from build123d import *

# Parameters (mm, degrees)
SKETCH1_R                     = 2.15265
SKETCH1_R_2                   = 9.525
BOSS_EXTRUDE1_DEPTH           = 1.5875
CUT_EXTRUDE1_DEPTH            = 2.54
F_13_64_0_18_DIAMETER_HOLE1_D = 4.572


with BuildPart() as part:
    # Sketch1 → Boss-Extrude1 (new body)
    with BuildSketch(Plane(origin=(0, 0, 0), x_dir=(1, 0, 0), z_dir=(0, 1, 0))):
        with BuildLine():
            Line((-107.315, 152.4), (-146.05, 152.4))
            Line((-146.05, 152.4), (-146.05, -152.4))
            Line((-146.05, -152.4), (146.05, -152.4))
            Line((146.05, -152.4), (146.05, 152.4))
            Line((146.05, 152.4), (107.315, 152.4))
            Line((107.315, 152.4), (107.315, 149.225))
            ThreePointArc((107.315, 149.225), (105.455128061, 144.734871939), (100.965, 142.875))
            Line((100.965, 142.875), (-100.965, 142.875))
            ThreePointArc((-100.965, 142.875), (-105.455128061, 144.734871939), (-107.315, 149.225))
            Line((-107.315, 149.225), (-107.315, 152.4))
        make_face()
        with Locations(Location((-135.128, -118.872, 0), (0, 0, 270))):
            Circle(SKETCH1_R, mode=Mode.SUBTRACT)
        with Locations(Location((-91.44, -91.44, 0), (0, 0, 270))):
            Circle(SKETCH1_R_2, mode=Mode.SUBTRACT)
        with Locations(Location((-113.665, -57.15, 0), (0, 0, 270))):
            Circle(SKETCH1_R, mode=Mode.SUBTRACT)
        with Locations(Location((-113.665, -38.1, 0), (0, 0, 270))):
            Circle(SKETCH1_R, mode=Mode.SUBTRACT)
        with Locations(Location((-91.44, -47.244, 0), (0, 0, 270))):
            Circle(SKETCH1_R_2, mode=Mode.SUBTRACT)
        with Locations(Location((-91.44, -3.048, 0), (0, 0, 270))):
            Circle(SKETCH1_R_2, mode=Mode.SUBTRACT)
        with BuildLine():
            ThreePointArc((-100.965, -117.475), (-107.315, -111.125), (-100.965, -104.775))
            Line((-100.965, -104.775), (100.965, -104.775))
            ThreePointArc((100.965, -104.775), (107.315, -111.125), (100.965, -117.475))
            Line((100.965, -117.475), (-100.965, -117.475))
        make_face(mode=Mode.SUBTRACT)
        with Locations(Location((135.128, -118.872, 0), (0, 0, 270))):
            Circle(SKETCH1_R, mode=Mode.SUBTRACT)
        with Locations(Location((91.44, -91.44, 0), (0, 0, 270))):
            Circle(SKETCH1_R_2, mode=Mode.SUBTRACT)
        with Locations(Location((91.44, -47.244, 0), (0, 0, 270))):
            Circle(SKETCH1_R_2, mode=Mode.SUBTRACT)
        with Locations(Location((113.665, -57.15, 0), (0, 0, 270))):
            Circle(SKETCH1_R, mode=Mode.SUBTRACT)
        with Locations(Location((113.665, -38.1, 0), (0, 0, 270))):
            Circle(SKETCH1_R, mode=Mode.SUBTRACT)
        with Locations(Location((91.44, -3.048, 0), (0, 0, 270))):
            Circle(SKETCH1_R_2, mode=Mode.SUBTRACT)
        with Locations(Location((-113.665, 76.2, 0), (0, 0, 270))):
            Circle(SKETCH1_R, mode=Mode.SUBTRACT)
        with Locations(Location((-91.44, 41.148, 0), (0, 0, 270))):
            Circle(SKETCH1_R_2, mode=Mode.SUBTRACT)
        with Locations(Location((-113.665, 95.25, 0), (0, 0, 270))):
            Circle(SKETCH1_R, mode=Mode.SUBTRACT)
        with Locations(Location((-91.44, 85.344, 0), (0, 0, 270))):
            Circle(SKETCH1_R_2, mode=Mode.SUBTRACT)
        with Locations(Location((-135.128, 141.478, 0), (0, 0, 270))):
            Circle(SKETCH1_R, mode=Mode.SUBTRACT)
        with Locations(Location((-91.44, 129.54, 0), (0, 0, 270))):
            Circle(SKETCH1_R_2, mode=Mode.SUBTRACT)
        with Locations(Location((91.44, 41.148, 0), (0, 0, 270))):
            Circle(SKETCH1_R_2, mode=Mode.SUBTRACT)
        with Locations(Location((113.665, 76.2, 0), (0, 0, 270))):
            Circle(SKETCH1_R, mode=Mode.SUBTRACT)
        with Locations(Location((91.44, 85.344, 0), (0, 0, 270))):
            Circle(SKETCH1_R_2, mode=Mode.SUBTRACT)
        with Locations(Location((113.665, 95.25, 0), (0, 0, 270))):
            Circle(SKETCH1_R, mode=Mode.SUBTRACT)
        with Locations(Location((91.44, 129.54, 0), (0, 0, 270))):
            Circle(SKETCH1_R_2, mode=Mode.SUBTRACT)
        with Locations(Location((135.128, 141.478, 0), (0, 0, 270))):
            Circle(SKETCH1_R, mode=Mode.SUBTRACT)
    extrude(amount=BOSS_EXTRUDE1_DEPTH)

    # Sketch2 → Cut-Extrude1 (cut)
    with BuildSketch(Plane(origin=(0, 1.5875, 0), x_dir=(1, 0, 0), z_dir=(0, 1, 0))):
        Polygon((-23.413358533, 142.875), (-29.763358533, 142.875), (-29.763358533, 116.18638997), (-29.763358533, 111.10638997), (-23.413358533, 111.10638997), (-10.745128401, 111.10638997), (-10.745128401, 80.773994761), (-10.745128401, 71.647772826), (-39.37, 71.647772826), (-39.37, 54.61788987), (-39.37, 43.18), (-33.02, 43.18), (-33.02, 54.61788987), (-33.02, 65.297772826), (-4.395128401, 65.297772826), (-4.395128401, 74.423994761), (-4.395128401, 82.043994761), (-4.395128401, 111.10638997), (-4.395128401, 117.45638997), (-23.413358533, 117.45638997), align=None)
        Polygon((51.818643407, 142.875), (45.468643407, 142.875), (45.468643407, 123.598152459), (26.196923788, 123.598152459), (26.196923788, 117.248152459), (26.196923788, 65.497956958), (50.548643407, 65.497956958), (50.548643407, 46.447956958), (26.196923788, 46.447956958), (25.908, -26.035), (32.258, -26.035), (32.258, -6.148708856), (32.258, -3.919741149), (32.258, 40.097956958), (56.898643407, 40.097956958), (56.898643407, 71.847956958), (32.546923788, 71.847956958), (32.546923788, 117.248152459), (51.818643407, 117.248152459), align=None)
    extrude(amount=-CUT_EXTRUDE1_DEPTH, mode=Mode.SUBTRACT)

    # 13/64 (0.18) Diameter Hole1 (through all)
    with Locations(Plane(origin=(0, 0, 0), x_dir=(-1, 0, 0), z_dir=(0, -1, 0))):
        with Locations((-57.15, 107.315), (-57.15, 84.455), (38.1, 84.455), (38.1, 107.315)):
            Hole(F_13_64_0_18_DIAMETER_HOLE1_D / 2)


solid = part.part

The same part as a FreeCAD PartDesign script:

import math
import FreeCAD as App
import Part
import Sketcher
from FreeCAD import Vector
Q = App.Units.Quantity


def add_polygon(sketch, points):
    """Adds a closed chain of lines whose ends are joined by coincident constraints."""
    first, n = sketch.GeometryCount, len(points)
    for a, b in zip(points, points[1:] + points[:1]):
        sketch.addGeometry(Part.LineSegment(App.Vector(*a, 0), App.Vector(*b, 0)), False)
    for i in range(n):
        sketch.addConstraint(Sketcher.Constraint("Coincident", first + i, 2, first + (i + 1) % n, 1))

doc = App.newDocument("Part")
body = doc.addObject("PartDesign::Body", "Body")

# Sketch on XZ plane
sketch1 = body.newObject("Sketcher::SketchObject", "Sketch")
sketch1.AttachmentSupport = (doc.getObject("XZ_Plane"), [""])
sketch1.MapMode = "FlatFace"
sketch1.addGeometry([
    Part.LineSegment(Vector(-107.3, -152.4, 0), Vector(-146.1, -152.4, 0)),  # 0
    Part.LineSegment(Vector(-146.1, -152.4, 0), Vector(-146.1, 152.4, 0)),  # 1
    Part.LineSegment(Vector(-146.1, 152.4, 0), Vector(146.1, 152.4, 0)),  # 2
    Part.LineSegment(Vector(146.1, 152.4, 0), Vector(146.1, -152.4, 0)),  # 3
    Part.LineSegment(Vector(146.1, -152.4, 0), Vector(107.3, -152.4, 0)),  # 4
    Part.LineSegment(Vector(107.3, -152.4, 0), Vector(107.3, -149.2, 0)),  # 5
    Part.ArcOfCircle(Part.Circle(Vector(101, -149.2, 0), Vector(0, 0, 1), 6.3), math.radians(0), math.radians(90)),  # 6
    Part.LineSegment(Vector(101, -142.9, 0), Vector(-101, -142.9, 0)),  # 7
    Part.ArcOfCircle(Part.Circle(Vector(-101, -149.2, 0), Vector(0, 0, 1), 6.3), math.radians(90), math.radians(180)),  # 8
    Part.LineSegment(Vector(-107.3, -149.2, 0), Vector(-107.3, -152.4, 0)),  # 9
    Part.Circle(Vector(-135.1, 118.9, 0), Vector(0, 0, 1), 2.2),  # 10
    Part.Circle(Vector(-91.4, 91.4, 0), Vector(0, 0, 1), 9.5),  # 11
    Part.Circle(Vector(-113.7, 57.1, 0), Vector(0, 0, 1), 2.2),  # 12
    Part.Circle(Vector(-113.7, 38.1, 0), Vector(0, 0, 1), 2.2),  # 13
    Part.Circle(Vector(-91.4, 47.2, 0), Vector(0, 0, 1), 9.5),  # 14
    Part.Circle(Vector(-91.4, 3, 0), Vector(0, 0, 1), 9.5),  # 15
    Part.LineSegment(Vector(101, 117.5, 0), Vector(-101, 117.5, 0)),  # 16
    Part.ArcOfCircle(Part.Circle(Vector(-101, 111.1, 0), Vector(0, 0, 1), 6.3), math.radians(90), math.radians(270)),  # 17
    Part.LineSegment(Vector(-101, 104.8, 0), Vector(101, 104.8, 0)),  # 18
    Part.ArcOfCircle(Part.Circle(Vector(101, 111.1, 0), Vector(0, 0, 1), 6.3), math.radians(-90), math.radians(90)),  # 19
    Part.Circle(Vector(91.4, 91.4, 0), Vector(0, 0, 1), 9.5),  # 20
    Part.Circle(Vector(135.1, 118.9, 0), Vector(0, 0, 1), 2.2),  # 21
    Part.Circle(Vector(113.7, 57.1, 0), Vector(0, 0, 1), 2.2),  # 22
    Part.Circle(Vector(91.4, 47.2, 0), Vector(0, 0, 1), 9.5),  # 23
    Part.Circle(Vector(113.7, 38.1, 0), Vector(0, 0, 1), 2.2),  # 24
    Part.Circle(Vector(91.4, 3, 0), Vector(0, 0, 1), 9.5),  # 25
    Part.Circle(Vector(-91.4, -41.1, 0), Vector(0, 0, 1), 9.5),  # 26
    Part.Circle(Vector(-113.7, -76.2, 0), Vector(0, 0, 1), 2.2),  # 27
    Part.Circle(Vector(-113.7, -95.2, 0), Vector(0, 0, 1), 2.2),  # 28
    Part.Circle(Vector(-91.4, -85.3, 0), Vector(0, 0, 1), 9.5),  # 29
    Part.Circle(Vector(-135.1, -141.5, 0), Vector(0, 0, 1), 2.2),  # 30
    Part.Circle(Vector(-91.4, -129.5, 0), Vector(0, 0, 1), 9.5),  # 31
    Part.Circle(Vector(91.4, -41.1, 0), Vector(0, 0, 1), 9.5),  # 32
    Part.Circle(Vector(113.7, -76.2, 0), Vector(0, 0, 1), 2.2),  # 33
    Part.Circle(Vector(91.4, -85.3, 0), Vector(0, 0, 1), 9.5),  # 34
    Part.Circle(Vector(113.7, -95.2, 0), Vector(0, 0, 1), 2.2),  # 35
    Part.Circle(Vector(91.4, -129.5, 0), Vector(0, 0, 1), 9.5),  # 36
    Part.Circle(Vector(135.1, -141.5, 0), Vector(0, 0, 1), 2.2),  # 37
], False)
sketch1.addConstraint([
    Sketcher.Constraint("Coincident", 0, 2, 1, 1),
    Sketcher.Constraint("Coincident", 1, 2, 2, 1),
    Sketcher.Constraint("Coincident", 2, 2, 3, 1),
    Sketcher.Constraint("Coincident", 3, 2, 4, 1),
    Sketcher.Constraint("Coincident", 4, 2, 5, 1),
    Sketcher.Constraint("Tangent", 5, 2, 6, 1),
    Sketcher.Constraint("Tangent", 6, 2, 7, 1),
    Sketcher.Constraint("Tangent", 7, 2, 8, 1),
    Sketcher.Constraint("Tangent", 8, 2, 9, 1),
    Sketcher.Constraint("Coincident", 9, 2, 0, 1),
    Sketcher.Constraint("Tangent", 16, 2, 17, 1),
    Sketcher.Constraint("Tangent", 17, 2, 18, 1),
    Sketcher.Constraint("Tangent", 18, 2, 19, 1),
    Sketcher.Constraint("Tangent", 19, 2, 16, 1),
    Sketcher.Constraint("Horizontal", 0),
    Sketcher.Constraint("Vertical", 1),
    Sketcher.Constraint("Horizontal", 2),
    Sketcher.Constraint("Vertical", 3),
    Sketcher.Constraint("Horizontal", 4),
    Sketcher.Constraint("Vertical", 5),
    Sketcher.Constraint("Horizontal", 7),
    Sketcher.Constraint("Vertical", 9),
    Sketcher.Constraint("Horizontal", 16),
    Sketcher.Constraint("Horizontal", 18),
    Sketcher.Constraint("Equal", 6, 8),
    Sketcher.Constraint("Equal", 10, 12),
    Sketcher.Constraint("Equal", 12, 13),
    Sketcher.Constraint("Equal", 11, 14),
    Sketcher.Constraint("Equal", 14, 15),
    Sketcher.Constraint("Equal", 8, 17),
    Sketcher.Constraint("Equal", 15, 20),
    Sketcher.Constraint("Equal", 13, 21),
    Sketcher.Constraint("Equal", 21, 22),
    Sketcher.Constraint("Equal", 20, 23),
    Sketcher.Constraint("Equal", 22, 24),
    Sketcher.Constraint("Equal", 23, 25),
    Sketcher.Constraint("Equal", 25, 26),
    Sketcher.Constraint("Equal", 24, 27),
    Sketcher.Constraint("Equal", 27, 28),
    Sketcher.Constraint("Equal", 26, 29),
    Sketcher.Constraint("Equal", 28, 30),
    Sketcher.Constraint("Equal", 29, 31),
    Sketcher.Constraint("Equal", 31, 32),
    Sketcher.Constraint("Equal", 30, 33),
    Sketcher.Constraint("Equal", 32, 34),
    Sketcher.Constraint("Equal", 33, 35),
    Sketcher.Constraint("Equal", 34, 36),
    Sketcher.Constraint("Equal", 35, 37),
    Sketcher.Constraint("Symmetric", 0, 2, 2, 2, -1, 1),
    Sketcher.Constraint("Symmetric", 11, 3, 20, 3, -2),
    Sketcher.Constraint("Symmetric", 10, 3, 21, 3, -2),
    Sketcher.Constraint("Symmetric", 12, 3, 22, 3, -2),
    Sketcher.Constraint("Symmetric", 14, 3, 23, 3, -2),
    Sketcher.Constraint("Symmetric", 13, 3, 24, 3, -2),
    Sketcher.Constraint("Symmetric", 15, 3, 25, 3, -2),
    Sketcher.Constraint("Symmetric", 26, 3, 32, 3, -2),
    Sketcher.Constraint("Symmetric", 27, 3, 33, 3, -2),
    Sketcher.Constraint("Symmetric", 29, 3, 34, 3, -2),
    Sketcher.Constraint("Symmetric", 28, 3, 35, 3, -2),
    Sketcher.Constraint("Symmetric", 31, 3, 36, 3, -2),
    Sketcher.Constraint("Symmetric", 30, 3, 37, 3, -2),
    Sketcher.Constraint("Symmetric", 4, 2, 9, 2, -2),
    Sketcher.Constraint("Vertical", 12, 3, 13, 3),
    Sketcher.Constraint("Vertical", 11, 3, 14, 3),
    Sketcher.Constraint("Vertical", 14, 3, 15, 3),
    Sketcher.Constraint("Vertical", 8, 3, 17, 3),
    Sketcher.Constraint("Vertical", 6, 3, 19, 3),
    Sketcher.Constraint("Vertical", 15, 3, 26, 3),
    Sketcher.Constraint("Vertical", 13, 3, 27, 3),
    Sketcher.Constraint("Vertical", 27, 3, 28, 3),
    Sketcher.Constraint("Vertical", 26, 3, 29, 3),
    Sketcher.Constraint("Vertical", 10, 3, 30, 3),
    Sketcher.Constraint("Vertical", 29, 3, 31, 3),
    Sketcher.Constraint("Diameter", 11, Q("0.75 in")),
    Sketcher.Constraint("DistanceY", 1, 1, 1, 2, Q("12 in")),
    Sketcher.Constraint("Radius", 6, Q("0.25 in")),
    Sketcher.Constraint("DistanceX", 2, 1, 2, 2, Q("11.5 in")),
    Sketcher.Constraint("DistanceY", 27, 3, -1, 1, Q("3 in")),
    Sketcher.Constraint("Diameter", 10, Q("0.1695 in")),
    Sketcher.Constraint("DistanceX", 7, 2, 7, 1, Q("7.95 in")),
    Sketcher.Constraint("DistanceX", 11, 3, -1, 1, Q("3.6 in")),
    Sketcher.Constraint("DistanceY", -1, 1, 11, 3, Q("3.6 in")),
    Sketcher.Constraint("DistanceY", -1, 1, 13, 3, Q("1.5 in")),
    Sketcher.Constraint("DistanceY", 31, 3, -1, 1, Q("5.1 in")),
    Sketcher.Constraint("DistanceX", 12, 3, 8, 3, Q("0.5 in")),
    Sketcher.Constraint("DistanceY", 5, 1, 5, 2, Q("0.125 in")),
    Sketcher.Constraint("DistanceX", 10, 3, -1, 1, Q("5.32 in")),
    Sketcher.Constraint("DistanceY", -1, 1, 10, 3, Q("4.68 in")),
    Sketcher.Constraint("DistanceY", -1, 1, 12, 3, Q("2.25 in")),
    Sketcher.Constraint("DistanceY", -1, 1, 14, 3, Q("1.86 in")),
    Sketcher.Constraint("DistanceY", -1, 1, 15, 3, Q("0.12 in")),
    Sketcher.Constraint("DistanceY", 26, 3, -1, 1, Q("1.62 in")),
    Sketcher.Constraint("DistanceY", 28, 3, -1, 1, Q("3.75 in")),
    Sketcher.Constraint("DistanceY", 29, 3, -1, 1, Q("3.36 in")),
    Sketcher.Constraint("DistanceY", 30, 3, -1, 1, Q("5.57 in")),
    Sketcher.Constraint("DistanceY", -1, 1, 17, 3, Q("4.375 in")),
])
pad1 = body.newObject("PartDesign::Pad", "Pad")
pad1.Profile = sketch1
pad1.Length = Q("0.0625 in")
pad1.Reversed = True

# Sketch on XZ plane
sketch2 = body.newObject("Sketcher::SketchObject", "Sketch001")
sketch2.AttachmentSupport = (doc.getObject("XZ_Plane"), [""])
sketch2.MapMode = "FlatFace"
sketch2.AttachmentOffset = App.Placement(Vector(0, 0, -0.0625 * 25.4), App.Rotation())
add_polygon(sketch2, [(-23, -143), (-30, -143), (-30, -111), (-11, -111), (-11, -72), (-39, -72), (-39, -43), (-33, -43), (-33, -65), (-4, -65), (-4, -117), (-23, -117)])  # lines 0-11
add_polygon(sketch2, [(52, -143), (45, -143), (45, -124), (26, -124), (26, -65), (51, -65), (51, -46), (26, -46), (26, 26), (32, 26), (32, -40), (57, -40), (57, -72), (33, -72), (33, -117), (52, -117)])  # lines 12-27
sketch2.addConstraint([
    Sketcher.Constraint("Horizontal", 0),
    Sketcher.Constraint("Vertical", 1),
    Sketcher.Constraint("Horizontal", 2),
    Sketcher.Constraint("Vertical", 3),
    Sketcher.Constraint("Horizontal", 4),
    Sketcher.Constraint("Vertical", 5),
    Sketcher.Constraint("Horizontal", 6),
    Sketcher.Constraint("Vertical", 7),
    Sketcher.Constraint("Horizontal", 8),
    Sketcher.Constraint("Vertical", 9),
    Sketcher.Constraint("Horizontal", 10),
    Sketcher.Constraint("Vertical", 11),
    Sketcher.Constraint("Horizontal", 12),
    Sketcher.Constraint("Vertical", 13),
    Sketcher.Constraint("Horizontal", 14),
    Sketcher.Constraint("Vertical", 15),
    Sketcher.Constraint("Horizontal", 16),
    Sketcher.Constraint("Vertical", 17),
    Sketcher.Constraint("Horizontal", 18),
    Sketcher.Constraint("Horizontal", 20),
    Sketcher.Constraint("Vertical", 21),
    Sketcher.Constraint("Horizontal", 22),
    Sketcher.Constraint("Vertical", 23),
    Sketcher.Constraint("Horizontal", 24),
    Sketcher.Constraint("Vertical", 25),
    Sketcher.Constraint("Horizontal", 26),
    Sketcher.Constraint("Vertical", 27),
    Sketcher.Constraint("Horizontal", 11, 2, 12, 2),
    Sketcher.Constraint("Vertical", 15, 2, 18, 2),
    Sketcher.Constraint("Equal", 0, 6),
    Sketcher.Constraint("Equal", 4, 8),
    Sketcher.Constraint("Equal", 6, 12),
    Sketcher.Constraint("Equal", 12, 20),
    Sketcher.Constraint("Equal", 18, 24),
    Sketcher.Constraint("Equal", 14, 26),
    Sketcher.Constraint("DistanceY", 15, 2, 21, 2, Q("1 in")),
    Sketcher.Constraint("DistanceY", 23, 2, 17, 2, Q("1 in")),
    Sketcher.Constraint("DistanceX", 0, 2, 0, 1, Q("0.25 in")),
    Sketcher.Constraint("DistanceY", 17, 1, 17, 2, Q("0.75 in")),
    Sketcher.Constraint("DistanceY", 5, 2, -1, 1, Q("1.7 in")),
    Sketcher.Constraint("DistanceX", 6, 2, -1, 1, Q("1.3 in")),
    Sketcher.Constraint("DistanceX", 13, 2, 16, 2, Q("0.2 in")),
    Sketcher.Constraint("DistanceX", -1, 1, 19, 2, Q("1.02 in")),
    Sketcher.Constraint("DistanceY", 4, 2, 7, 2, Q("0.25 in")),
    Sketcher.Constraint("DistanceY", 9, 2, 2, 2, Q("0.25 in")),
    Sketcher.Constraint("DistanceY", 14, 2, 25, 2, Q("0.25 in")),
    Sketcher.Constraint("DistanceY", 0, 2, -1, 1, Q("5.625 in")),
    Sketcher.Constraint("DistanceY", -1, 1, 19, 2, Q("1.025 in")),
    Sketcher.Constraint("DistanceX", 2, 1, 2, 2, Q("19.01823 mm")),
    Sketcher.Constraint("DistanceX", 4, 2, 4, 1, Q("28.624872 mm")),
    Sketcher.Constraint("DistanceX", 14, 2, 14, 1, Q("19.27172 mm")),
    Sketcher.Constraint("DistanceY", 1, 1, 1, 2, Q("31.76861 mm")),
    Sketcher.Constraint("DistanceX", 11, 2, 12, 2, Q("68.882002 mm")),
    Sketcher.Constraint("DistanceY", 3, 1, 3, 2, Q("39.458617 mm")),
    Sketcher.Constraint("DistanceY", 13, 1, 13, 2, Q("19.276848 mm")),
    Sketcher.Constraint("DistanceY", 15, 1, 15, 2, Q("58.100196 mm")),
])
pocket1 = body.newObject("PartDesign::Pocket", "Pocket")
pocket1.Profile = sketch2
pocket1.Length = Q("0.1 in")
pocket1.Reversed = True

# Sketch on XZ plane
sketch3 = body.newObject("Sketcher::SketchObject", "Sketch002")
sketch3.AttachmentSupport = (doc.getObject("XZ_Plane"), [""])
sketch3.MapMode = "FlatFace"
sketch3.addGeometry([
    Part.Circle(Vector(57.1, -107.3, 0), Vector(0, 0, 1), 2.3),
    Part.Circle(Vector(57.1, -84.5, 0), Vector(0, 0, 1), 2.3),
    Part.Circle(Vector(-38.1, -84.5, 0), Vector(0, 0, 1), 2.3),
    Part.Circle(Vector(-38.1, -107.3, 0), Vector(0, 0, 1), 2.3),
], False)
sketch3.addConstraint([
    Sketcher.Constraint("Equal", 0, 1),
    Sketcher.Constraint("Equal", 1, 2),
    Sketcher.Constraint("Equal", 2, 3),
    Sketcher.Constraint("Horizontal", 1, 3, 2, 3),
    Sketcher.Constraint("Horizontal", 0, 3, 3, 3),
    Sketcher.Constraint("Vertical", 0, 3, 1, 3),
    Sketcher.Constraint("Vertical", 2, 3, 3, 3),
    Sketcher.Constraint("Diameter", 0, Q("0.18 in")),
    Sketcher.Constraint("DistanceX", 2, 3, -1, 1, Q("1.5 in")),
    Sketcher.Constraint("DistanceY", 0, 3, 1, 3, Q("0.9 in")),
    Sketcher.Constraint("DistanceX", -1, 1, 0, 3, Q("2.25 in")),
    Sketcher.Constraint("DistanceY", 0, 3, -1, 1, Q("4.225 in")),
])
doc.recompute()
hole = body.newObject("PartDesign::Hole", "Hole")
hole.Profile = sketch3
hole.ThreadType = "None"
hole.Diameter = Q("0.18 in")
hole.DepthType = "ThroughAll"

doc.recompute()
